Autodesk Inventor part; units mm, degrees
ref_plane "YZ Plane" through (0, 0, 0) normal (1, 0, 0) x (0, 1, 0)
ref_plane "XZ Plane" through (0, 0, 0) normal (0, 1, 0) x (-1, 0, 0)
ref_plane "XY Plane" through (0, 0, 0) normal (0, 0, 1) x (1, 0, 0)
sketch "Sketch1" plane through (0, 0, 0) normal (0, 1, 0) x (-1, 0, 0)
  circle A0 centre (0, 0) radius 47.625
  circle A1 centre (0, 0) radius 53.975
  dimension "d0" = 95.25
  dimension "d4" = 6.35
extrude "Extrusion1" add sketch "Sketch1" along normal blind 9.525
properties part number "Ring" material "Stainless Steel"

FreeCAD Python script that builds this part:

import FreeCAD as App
import Part
import Sketcher
Q = App.Units.Quantity

doc = App.newDocument("Part")
params = doc.addObject("Spreadsheet::Sheet", "Params")
for row, (alias, value) in enumerate([
    ("sketch1_diameter", "3.75 in"),
    ("sketch1_diameter2", "4.25 in"),
    ("pad1_length", "0.375 in"),
], start=1):
    params.set(f"A{row}", alias)
    params.set(f"B{row}", "=" + value)
    params.setAlias(f"B{row}", alias)

body = doc.addObject("PartDesign::Body", "Body")

sketch1 = body.newObject("Sketcher::SketchObject", "Sketch")
sketch1.AttachmentSupport = (doc.getObject("XZ_Plane"), [""])
sketch1.MapMode = "FlatFace"
sketch1.addGeometry([
    Part.Circle(App.Vector(0, 0, 0), App.Vector(0, 0, 1), 54),
    Part.Circle(App.Vector(0, 0, 0), App.Vector(0, 0, 1), 48),
], False)
sketch1.addConstraint([
    Sketcher.Constraint("Coincident", 0, 3, -1, 1),
    Sketcher.Constraint("Coincident", 1, 3, -1, 1),
    Sketcher.Constraint("Diameter", 1, Q("3.75 in")),
    Sketcher.Constraint("Diameter", 0, Q("4.25 in")),
])
sketch1.setExpression("Constraints[2]", "Params.sketch1_diameter")
sketch1.setExpression("Constraints[3]", "Params.sketch1_diameter2")
pad1 = body.newObject("PartDesign::Pad", "Pad")
pad1.Profile = sketch1
pad1.setExpression("Length", "Params.pad1_length")
pad1.Reversed = True

doc.recompute()
